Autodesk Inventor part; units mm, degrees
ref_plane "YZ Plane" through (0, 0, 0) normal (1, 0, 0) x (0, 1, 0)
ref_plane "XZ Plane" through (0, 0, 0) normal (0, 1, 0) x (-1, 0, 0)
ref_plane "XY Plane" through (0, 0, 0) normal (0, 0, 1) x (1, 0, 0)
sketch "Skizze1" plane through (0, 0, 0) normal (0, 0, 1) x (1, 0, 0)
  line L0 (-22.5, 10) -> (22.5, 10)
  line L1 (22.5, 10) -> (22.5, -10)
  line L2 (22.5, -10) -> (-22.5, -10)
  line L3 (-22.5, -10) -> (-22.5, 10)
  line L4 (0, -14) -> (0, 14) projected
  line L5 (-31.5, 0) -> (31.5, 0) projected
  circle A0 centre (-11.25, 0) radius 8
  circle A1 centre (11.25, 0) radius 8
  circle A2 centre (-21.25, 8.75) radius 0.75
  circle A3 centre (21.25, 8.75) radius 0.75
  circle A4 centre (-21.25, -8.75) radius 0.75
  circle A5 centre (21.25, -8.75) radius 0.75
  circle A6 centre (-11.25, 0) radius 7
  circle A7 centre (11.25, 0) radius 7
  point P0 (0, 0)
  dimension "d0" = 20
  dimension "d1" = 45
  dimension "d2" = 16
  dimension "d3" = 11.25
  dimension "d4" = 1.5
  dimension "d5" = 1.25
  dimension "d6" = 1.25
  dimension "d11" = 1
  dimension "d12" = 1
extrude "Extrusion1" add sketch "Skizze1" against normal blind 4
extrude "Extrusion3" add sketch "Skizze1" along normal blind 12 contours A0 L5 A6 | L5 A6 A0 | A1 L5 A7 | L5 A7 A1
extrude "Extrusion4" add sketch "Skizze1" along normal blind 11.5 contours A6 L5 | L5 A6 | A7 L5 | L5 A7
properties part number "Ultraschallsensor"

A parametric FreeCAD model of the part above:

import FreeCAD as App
import Part
import Sketcher

V = App.Vector

doc = App.newDocument("Part")
params = doc.addObject("Spreadsheet::Sheet", "Params")
for row, (alias, value) in enumerate([
    ("sketch1_diameter", "1.5 mm"),
    ("sketch1_width", "45 mm"),
    ("sketch1_height", "20 mm"),
    ("pad1_length", "4 mm"),
    ("sketch2_diameter", "16 mm"),
    ("sketch2_diameter2", "14 mm"),
    ("pad2_length", "12 mm"),
    ("sketch3_diameter", "14 mm"),
    ("pad3_length", "11.5 mm"),
], start=1):
    params.set(f"A{row}", alias)
    params.set(f"B{row}", "=" + value)
    params.setAlias(f"B{row}", alias)

body = doc.addObject("PartDesign::Body", "Body")

sketch1 = body.newObject("Sketcher::SketchObject", "Sketch")
sketch1.AttachmentSupport = (doc.getObject("XY_Plane"), [""])
sketch1.MapMode = "FlatFace"
sketch1.addGeometry(Part.LineSegment(V(-22.5, 10, 0), V(-22.5, -10, 0)), False)
sketch1.addGeometry(Part.LineSegment(V(-22.5, -10, 0), V(22.5, -10, 0)), False)
sketch1.addGeometry(Part.LineSegment(V(22.5, -10, 0), V(22.5, 10, 0)), False)
sketch1.addGeometry(Part.LineSegment(V(22.5, 10, 0), V(-22.5, 10, 0)), False)
sketch1.addGeometry(Part.Circle(V(-21.25, 8.75, 0), V(0, 0, 1), 0.75), False)
sketch1.addGeometry(Part.Circle(V(21.25, 8.75, 0), V(0, 0, 1), 0.75), False)
sketch1.addGeometry(Part.Circle(V(-21.25, -8.75, 0), V(0, 0, 1), 0.75), False)
sketch1.addGeometry(Part.Circle(V(21.25, -8.75, 0), V(0, 0, 1), 0.75), False)
sketch1.addConstraint(Sketcher.Constraint("Coincident", 0, 2, 1, 1))
sketch1.addConstraint(Sketcher.Constraint("Coincident", 1, 2, 2, 1))
sketch1.addConstraint(Sketcher.Constraint("Coincident", 2, 2, 3, 1))
sketch1.addConstraint(Sketcher.Constraint("Coincident", 3, 2, 0, 1))
sketch1.addConstraint(Sketcher.Constraint("Vertical", 0))
sketch1.addConstraint(Sketcher.Constraint("Horizontal", 1))
sketch1.addConstraint(Sketcher.Constraint("Vertical", 2))
sketch1.addConstraint(Sketcher.Constraint("Horizontal", 3))
sketch1.addConstraint(Sketcher.Constraint("Equal", 4, 5))
sketch1.addConstraint(Sketcher.Constraint("Equal", 5, 6))
sketch1.addConstraint(Sketcher.Constraint("Equal", 6, 7))
sketch1.addConstraint(Sketcher.Constraint("Symmetric", 5, 3, 6, 3, -1, 1))
sketch1.addConstraint(Sketcher.Constraint("Symmetric", 4, 3, 7, 3, -1, 1))
sketch1.addConstraint(Sketcher.Constraint("Symmetric", 0, 2, 2, 2, -1, 1))
sketch1.addConstraint(Sketcher.Constraint("Symmetric", 4, 3, 5, 3, -2))
sketch1.addConstraint(Sketcher.Constraint("Diameter", 4, 1.5))
sketch1.addConstraint(Sketcher.Constraint("DistanceX", 1, 1, 1, 2, 45.0))
sketch1.addConstraint(Sketcher.Constraint("DistanceY", 0, 2, 0, 1, 20.0))
sketch1.addConstraint(Sketcher.Constraint("DistanceX", 0, 2, 6, 3, 1.25))
sketch1.addConstraint(Sketcher.Constraint("DistanceY", 0, 2, 6, 3, 1.25))
sketch1.setExpression("Constraints[15]", "Params.sketch1_diameter")
sketch1.setExpression("Constraints[16]", "Params.sketch1_width")
sketch1.setExpression("Constraints[17]", "Params.sketch1_height")
pad1 = body.newObject("PartDesign::Pad", "Pad")
pad1.Profile = sketch1
pad1.setExpression("Length", "Params.pad1_length")
pad1.Reversed = True

sketch2 = body.newObject("Sketcher::SketchObject", "Sketch001")
sketch2.AttachmentSupport = (doc.getObject("XY_Plane"), [""])
sketch2.MapMode = "FlatFace"
sketch2.addGeometry(Part.Circle(V(-11.25, 0, 0), V(0, 0, 1), 8), False)
sketch2.addGeometry(Part.Circle(V(-11.25, 0, 0), V(0, 0, 1), 7), False)
sketch2.addGeometry(Part.Circle(V(11.25, 0, 0), V(0, 0, 1), 8), False)
sketch2.addGeometry(Part.Circle(V(11.25, 0, 0), V(0, 0, 1), 7), False)
sketch2.addConstraint(Sketcher.Constraint("Coincident", 1, 3, 0, 3))
sketch2.addConstraint(Sketcher.Constraint("Coincident", 3, 3, 2, 3))
sketch2.addConstraint(Sketcher.Constraint("Equal", 0, 2))
sketch2.addConstraint(Sketcher.Constraint("Equal", 1, 3))
sketch2.addConstraint(Sketcher.Constraint("Symmetric", 0, 3, 2, 3, -1, 1))
sketch2.addConstraint(Sketcher.Constraint("PointOnObject", 0, 3, -1))
sketch2.addConstraint(Sketcher.Constraint("Diameter", 0, 16.0))
sketch2.addConstraint(Sketcher.Constraint("Diameter", 1, 14.0))
sketch2.addConstraint(Sketcher.Constraint("DistanceX", 0, 3, -1, 1, 11.25))
sketch2.setExpression("Constraints[6]", "Params.sketch2_diameter")
sketch2.setExpression("Constraints[7]", "Params.sketch2_diameter2")
pad2 = body.newObject("PartDesign::Pad", "Pad001")
pad2.Profile = sketch2
pad2.setExpression("Length", "Params.pad2_length")

sketch3 = body.newObject("Sketcher::SketchObject", "Sketch002")
sketch3.AttachmentSupport = (doc.getObject("XY_Plane"), [""])
sketch3.MapMode = "FlatFace"
sketch3.addGeometry(Part.Circle(V(-11.25, 0, 0), V(0, 0, 1), 7), False)
sketch3.addGeometry(Part.Circle(V(11.25, 0, 0), V(0, 0, 1), 7), False)
sketch3.addConstraint(Sketcher.Constraint("Equal", 0, 1))
sketch3.addConstraint(Sketcher.Constraint("Symmetric", 0, 3, 1, 3, -1, 1))
sketch3.addConstraint(Sketcher.Constraint("PointOnObject", 0, 3, -1))
sketch3.addConstraint(Sketcher.Constraint("Diameter", 0, 14.0))
sketch3.addConstraint(Sketcher.Constraint("DistanceX", 0, 3, -1, 1, 11.25))
sketch3.setExpression("Constraints[3]", "Params.sketch3_diameter")
pad3 = body.newObject("PartDesign::Pad", "Pad002")
pad3.Profile = sketch3
pad3.setExpression("Length", "Params.pad3_length")

doc.recompute()
